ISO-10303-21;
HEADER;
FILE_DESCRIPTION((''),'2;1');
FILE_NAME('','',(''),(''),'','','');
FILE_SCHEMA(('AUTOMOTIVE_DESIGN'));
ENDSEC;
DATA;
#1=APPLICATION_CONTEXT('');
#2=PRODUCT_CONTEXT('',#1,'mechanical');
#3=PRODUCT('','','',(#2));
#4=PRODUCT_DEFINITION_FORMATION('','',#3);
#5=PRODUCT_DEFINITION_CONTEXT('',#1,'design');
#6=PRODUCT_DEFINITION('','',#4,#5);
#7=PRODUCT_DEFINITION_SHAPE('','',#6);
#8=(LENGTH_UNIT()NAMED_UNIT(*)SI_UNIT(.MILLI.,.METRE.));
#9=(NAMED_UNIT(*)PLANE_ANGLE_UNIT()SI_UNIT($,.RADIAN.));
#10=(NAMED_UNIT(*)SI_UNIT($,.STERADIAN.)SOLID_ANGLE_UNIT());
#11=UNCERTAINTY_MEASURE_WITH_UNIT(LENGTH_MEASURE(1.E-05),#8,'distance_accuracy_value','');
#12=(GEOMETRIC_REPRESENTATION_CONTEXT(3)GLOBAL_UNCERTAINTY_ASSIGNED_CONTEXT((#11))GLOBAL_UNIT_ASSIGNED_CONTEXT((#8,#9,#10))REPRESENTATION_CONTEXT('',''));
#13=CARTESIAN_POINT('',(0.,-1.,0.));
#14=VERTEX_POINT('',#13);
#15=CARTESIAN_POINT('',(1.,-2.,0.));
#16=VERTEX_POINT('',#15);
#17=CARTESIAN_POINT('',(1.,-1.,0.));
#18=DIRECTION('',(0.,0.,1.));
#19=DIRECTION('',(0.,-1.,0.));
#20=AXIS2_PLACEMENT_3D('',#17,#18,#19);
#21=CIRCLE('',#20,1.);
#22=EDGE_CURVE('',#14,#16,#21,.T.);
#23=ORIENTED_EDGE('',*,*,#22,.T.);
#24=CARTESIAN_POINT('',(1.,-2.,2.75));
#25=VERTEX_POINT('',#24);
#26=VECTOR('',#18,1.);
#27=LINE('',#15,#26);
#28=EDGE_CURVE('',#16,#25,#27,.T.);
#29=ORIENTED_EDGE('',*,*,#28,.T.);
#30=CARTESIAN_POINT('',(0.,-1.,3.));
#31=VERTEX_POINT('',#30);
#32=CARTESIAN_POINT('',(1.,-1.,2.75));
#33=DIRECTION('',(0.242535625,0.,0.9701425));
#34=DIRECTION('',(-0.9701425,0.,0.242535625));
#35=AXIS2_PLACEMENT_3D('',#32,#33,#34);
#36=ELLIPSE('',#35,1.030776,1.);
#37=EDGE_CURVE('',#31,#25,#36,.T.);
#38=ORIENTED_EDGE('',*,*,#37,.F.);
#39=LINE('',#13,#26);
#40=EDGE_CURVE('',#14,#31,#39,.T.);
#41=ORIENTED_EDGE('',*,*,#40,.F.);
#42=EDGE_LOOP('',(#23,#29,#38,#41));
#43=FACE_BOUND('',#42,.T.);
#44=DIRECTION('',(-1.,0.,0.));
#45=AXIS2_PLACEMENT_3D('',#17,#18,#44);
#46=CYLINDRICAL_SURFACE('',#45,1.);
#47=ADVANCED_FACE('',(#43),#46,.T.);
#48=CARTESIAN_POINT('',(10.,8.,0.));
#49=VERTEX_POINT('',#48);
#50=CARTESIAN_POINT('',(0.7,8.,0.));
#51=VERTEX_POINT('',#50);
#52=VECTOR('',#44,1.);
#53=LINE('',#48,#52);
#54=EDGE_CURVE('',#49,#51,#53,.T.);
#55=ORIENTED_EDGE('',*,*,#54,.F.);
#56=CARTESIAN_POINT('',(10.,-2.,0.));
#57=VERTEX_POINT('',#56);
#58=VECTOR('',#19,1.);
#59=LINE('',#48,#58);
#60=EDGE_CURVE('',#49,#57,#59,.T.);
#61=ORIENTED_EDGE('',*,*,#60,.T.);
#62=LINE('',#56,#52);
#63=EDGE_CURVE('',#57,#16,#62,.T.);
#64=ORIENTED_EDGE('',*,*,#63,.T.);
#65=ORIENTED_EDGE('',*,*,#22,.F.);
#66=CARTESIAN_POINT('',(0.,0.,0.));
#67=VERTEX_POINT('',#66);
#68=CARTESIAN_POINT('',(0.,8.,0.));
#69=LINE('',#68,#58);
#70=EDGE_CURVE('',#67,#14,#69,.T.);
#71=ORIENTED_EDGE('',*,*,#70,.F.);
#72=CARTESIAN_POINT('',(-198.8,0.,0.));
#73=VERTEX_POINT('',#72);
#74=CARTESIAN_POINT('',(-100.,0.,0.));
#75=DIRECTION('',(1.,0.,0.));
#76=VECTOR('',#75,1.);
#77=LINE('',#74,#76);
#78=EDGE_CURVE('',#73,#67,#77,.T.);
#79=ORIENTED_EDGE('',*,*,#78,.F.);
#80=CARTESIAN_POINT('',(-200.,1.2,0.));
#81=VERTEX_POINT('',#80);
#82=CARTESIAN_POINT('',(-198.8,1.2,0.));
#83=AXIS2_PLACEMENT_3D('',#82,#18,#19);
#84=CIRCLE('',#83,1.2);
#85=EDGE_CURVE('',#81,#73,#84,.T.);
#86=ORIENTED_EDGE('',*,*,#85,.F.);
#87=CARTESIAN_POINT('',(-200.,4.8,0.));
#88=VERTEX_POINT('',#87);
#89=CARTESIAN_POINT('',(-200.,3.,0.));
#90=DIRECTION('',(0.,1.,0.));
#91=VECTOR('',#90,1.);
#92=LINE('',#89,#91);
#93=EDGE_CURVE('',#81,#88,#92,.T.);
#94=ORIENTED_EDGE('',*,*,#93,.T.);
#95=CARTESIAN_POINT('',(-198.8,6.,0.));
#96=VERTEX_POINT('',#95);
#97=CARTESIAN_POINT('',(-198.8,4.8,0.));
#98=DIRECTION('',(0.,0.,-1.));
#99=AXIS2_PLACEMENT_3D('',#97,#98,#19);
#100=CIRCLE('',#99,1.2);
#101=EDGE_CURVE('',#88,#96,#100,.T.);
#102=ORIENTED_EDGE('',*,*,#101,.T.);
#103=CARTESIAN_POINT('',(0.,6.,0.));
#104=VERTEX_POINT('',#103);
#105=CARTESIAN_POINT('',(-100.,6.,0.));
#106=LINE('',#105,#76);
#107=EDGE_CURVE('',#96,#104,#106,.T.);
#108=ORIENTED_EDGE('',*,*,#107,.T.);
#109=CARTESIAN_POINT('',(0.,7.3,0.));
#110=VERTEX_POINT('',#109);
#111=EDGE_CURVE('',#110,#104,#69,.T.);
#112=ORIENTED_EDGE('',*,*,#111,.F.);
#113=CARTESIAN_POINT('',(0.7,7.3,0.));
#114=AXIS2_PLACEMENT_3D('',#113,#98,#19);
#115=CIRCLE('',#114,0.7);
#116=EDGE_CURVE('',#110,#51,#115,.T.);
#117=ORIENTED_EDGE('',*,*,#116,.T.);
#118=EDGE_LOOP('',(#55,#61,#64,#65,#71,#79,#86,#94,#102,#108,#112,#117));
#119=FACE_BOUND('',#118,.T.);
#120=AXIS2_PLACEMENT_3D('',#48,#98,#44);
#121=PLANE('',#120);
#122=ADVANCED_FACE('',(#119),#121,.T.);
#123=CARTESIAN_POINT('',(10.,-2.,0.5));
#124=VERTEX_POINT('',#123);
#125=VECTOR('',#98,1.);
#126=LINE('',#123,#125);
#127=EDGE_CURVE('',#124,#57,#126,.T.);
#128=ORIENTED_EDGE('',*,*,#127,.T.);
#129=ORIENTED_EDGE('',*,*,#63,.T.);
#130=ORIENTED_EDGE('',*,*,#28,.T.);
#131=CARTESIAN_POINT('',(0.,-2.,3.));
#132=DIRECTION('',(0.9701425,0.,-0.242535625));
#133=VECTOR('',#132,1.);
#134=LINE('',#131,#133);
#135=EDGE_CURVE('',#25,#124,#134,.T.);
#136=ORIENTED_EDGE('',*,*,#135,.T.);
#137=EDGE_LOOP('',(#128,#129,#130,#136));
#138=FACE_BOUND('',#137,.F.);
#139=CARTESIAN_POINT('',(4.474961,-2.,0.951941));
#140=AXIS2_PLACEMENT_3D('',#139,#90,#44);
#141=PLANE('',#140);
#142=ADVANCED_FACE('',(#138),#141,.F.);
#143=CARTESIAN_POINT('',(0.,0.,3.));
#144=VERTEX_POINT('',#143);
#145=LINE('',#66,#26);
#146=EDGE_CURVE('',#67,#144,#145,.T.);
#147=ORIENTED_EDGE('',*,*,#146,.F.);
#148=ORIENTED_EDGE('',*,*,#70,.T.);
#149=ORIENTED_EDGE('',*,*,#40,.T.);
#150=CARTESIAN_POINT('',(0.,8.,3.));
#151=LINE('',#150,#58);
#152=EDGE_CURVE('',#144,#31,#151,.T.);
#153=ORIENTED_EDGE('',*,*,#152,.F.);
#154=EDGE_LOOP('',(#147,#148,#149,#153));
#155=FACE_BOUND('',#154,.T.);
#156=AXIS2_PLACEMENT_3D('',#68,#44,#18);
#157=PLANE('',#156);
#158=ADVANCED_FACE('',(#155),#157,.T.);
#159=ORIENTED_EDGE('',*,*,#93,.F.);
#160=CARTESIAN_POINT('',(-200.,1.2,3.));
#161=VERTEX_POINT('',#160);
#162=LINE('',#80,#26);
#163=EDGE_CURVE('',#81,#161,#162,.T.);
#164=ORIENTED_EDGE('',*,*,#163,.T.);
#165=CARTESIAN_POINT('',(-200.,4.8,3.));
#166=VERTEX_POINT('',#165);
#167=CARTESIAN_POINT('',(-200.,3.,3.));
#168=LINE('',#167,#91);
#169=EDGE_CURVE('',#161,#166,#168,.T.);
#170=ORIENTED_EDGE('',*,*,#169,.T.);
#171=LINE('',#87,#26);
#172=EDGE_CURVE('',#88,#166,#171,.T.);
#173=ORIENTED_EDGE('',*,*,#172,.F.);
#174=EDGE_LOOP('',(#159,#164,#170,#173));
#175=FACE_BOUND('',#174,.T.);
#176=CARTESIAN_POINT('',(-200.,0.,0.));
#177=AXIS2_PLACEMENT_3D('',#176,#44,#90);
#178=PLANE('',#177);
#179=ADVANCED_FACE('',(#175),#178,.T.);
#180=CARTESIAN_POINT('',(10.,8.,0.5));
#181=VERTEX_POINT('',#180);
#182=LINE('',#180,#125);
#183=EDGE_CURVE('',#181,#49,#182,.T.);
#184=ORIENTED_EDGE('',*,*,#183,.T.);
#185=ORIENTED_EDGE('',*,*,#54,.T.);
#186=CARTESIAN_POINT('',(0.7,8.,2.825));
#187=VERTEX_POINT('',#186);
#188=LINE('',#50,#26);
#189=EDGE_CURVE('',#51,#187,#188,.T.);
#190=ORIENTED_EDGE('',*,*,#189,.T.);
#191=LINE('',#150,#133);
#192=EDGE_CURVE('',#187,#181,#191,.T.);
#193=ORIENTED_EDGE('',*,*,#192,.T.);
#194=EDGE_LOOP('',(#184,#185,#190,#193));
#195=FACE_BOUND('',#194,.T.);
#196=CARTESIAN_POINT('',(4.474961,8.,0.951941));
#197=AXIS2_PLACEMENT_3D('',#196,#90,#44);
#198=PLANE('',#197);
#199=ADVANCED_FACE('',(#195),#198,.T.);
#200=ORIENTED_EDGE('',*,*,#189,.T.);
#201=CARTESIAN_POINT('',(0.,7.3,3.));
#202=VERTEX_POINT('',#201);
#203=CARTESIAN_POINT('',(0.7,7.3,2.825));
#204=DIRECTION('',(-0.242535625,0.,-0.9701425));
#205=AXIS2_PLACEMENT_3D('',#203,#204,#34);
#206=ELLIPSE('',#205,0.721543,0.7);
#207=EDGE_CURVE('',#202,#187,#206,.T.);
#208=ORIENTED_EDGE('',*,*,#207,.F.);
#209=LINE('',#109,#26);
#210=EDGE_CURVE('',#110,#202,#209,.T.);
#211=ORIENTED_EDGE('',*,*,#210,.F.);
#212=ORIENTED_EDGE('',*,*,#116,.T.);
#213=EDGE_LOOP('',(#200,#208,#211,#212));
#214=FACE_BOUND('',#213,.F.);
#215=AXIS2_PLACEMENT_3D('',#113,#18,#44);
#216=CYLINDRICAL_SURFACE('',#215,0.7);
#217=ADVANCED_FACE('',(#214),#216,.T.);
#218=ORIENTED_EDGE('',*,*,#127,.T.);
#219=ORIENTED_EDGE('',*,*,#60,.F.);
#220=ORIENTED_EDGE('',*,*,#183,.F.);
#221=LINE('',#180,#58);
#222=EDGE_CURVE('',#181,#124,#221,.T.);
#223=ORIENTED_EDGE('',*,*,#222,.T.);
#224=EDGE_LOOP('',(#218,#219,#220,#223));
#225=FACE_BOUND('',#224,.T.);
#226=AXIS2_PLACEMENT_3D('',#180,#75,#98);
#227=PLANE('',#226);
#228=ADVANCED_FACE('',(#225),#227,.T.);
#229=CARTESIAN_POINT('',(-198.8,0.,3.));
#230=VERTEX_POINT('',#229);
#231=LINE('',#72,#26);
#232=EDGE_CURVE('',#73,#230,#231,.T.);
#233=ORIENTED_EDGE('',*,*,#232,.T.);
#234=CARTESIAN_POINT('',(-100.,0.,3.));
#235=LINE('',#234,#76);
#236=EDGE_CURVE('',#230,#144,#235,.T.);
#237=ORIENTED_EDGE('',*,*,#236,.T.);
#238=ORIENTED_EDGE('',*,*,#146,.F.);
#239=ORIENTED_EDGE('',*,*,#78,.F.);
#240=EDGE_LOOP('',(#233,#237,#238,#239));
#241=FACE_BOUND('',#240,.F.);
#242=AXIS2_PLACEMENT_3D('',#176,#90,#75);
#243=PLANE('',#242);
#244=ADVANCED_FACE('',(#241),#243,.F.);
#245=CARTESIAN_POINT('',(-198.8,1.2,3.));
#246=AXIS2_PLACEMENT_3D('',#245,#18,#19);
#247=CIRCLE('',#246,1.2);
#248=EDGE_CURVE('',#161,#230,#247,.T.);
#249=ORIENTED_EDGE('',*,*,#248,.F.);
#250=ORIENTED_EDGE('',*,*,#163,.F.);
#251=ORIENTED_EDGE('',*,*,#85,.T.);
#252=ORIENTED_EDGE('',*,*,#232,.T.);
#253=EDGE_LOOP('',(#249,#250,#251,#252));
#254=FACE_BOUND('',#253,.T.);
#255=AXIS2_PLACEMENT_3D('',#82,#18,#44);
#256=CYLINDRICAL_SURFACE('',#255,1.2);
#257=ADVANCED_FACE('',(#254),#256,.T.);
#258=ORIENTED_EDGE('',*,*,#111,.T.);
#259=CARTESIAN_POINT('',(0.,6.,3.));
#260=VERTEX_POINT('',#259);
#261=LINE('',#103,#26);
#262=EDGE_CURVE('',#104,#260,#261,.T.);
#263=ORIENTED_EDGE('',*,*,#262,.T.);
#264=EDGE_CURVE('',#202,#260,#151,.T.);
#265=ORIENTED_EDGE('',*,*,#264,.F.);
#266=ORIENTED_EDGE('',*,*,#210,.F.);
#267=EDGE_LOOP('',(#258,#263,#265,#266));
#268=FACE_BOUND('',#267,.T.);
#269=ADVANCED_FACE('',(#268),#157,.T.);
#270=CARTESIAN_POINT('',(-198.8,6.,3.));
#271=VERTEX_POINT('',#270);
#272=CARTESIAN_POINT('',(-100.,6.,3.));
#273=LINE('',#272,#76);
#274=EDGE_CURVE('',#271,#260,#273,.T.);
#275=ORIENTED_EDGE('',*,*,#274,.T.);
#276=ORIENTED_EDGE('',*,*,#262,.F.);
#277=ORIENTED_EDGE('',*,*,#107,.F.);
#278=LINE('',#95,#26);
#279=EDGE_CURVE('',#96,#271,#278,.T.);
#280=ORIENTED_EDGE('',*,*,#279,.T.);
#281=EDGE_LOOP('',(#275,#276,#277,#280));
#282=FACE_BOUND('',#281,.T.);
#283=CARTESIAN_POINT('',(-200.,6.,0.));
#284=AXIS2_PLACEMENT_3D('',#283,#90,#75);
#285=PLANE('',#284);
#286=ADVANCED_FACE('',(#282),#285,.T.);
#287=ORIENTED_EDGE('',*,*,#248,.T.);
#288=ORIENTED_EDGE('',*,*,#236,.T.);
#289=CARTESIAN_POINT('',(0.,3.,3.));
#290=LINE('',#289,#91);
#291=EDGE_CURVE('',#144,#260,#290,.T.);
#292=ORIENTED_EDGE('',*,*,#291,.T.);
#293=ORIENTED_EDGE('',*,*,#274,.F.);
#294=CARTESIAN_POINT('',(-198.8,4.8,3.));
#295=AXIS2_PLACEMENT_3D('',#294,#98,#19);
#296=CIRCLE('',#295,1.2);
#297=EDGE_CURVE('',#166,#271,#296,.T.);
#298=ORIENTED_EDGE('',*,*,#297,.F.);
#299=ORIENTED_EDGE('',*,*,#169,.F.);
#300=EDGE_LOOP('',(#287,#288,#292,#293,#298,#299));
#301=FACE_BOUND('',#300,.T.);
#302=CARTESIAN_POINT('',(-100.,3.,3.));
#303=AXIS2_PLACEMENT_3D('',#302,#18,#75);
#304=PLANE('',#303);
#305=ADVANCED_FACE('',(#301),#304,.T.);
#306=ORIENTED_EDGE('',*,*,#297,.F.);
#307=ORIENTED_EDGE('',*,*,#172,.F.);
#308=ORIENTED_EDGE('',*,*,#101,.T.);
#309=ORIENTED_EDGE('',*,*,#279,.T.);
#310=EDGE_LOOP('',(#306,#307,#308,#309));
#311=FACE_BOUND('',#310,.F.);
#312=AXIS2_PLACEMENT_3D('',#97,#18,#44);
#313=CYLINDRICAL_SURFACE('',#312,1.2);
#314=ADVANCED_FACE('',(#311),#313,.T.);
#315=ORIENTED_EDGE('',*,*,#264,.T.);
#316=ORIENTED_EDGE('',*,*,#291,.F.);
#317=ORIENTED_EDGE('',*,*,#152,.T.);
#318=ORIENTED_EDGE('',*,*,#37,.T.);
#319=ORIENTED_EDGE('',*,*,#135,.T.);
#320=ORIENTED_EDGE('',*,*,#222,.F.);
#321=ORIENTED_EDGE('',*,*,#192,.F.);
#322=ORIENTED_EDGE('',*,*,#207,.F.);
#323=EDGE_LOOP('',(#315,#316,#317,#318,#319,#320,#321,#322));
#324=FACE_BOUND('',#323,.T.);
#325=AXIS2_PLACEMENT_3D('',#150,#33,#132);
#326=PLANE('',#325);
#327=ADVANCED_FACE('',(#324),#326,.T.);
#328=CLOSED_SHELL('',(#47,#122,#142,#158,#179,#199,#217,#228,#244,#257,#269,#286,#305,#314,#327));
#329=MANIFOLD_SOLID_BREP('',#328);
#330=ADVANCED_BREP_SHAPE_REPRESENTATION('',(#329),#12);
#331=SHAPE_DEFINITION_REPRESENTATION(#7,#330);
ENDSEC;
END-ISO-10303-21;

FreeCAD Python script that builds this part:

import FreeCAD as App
import Part
import Sketcher
from FreeCAD import Vector


def edges_at(feature, points):
    """Names of the edges that pass closest to the given points."""
    edges = feature.Shape.Edges
    near = lambda p: min(range(len(edges)), key=lambda i: edges[i].distToShape(Part.Vertex(*p))[0])
    return sorted({f"Edge{near(p) + 1}" for p in points})

doc = App.newDocument("Part")
body = doc.addObject("PartDesign::Body", "Body")

sketch1 = doc.addObject("Sketcher::SketchObject", "Sketch")
body.addObject(sketch1)
sketch1.AttachmentSupport = (doc.XZ_Plane, [""])
sketch1.MapMode = "FlatFace"
sketch1.addGeometry(Part.LineSegment(Vector(0, 3, 0), Vector(0, 0, 0)), False)
sketch1.addGeometry(Part.LineSegment(Vector(0, 0, 0), Vector(10, 0, 0)), False)
sketch1.addGeometry(Part.LineSegment(Vector(10, 0, 0), Vector(10, 0.5, 0)), False)
sketch1.addGeometry(Part.LineSegment(Vector(10, 0.5, 0), Vector(0, 3, 0)), False)
sketch1.addConstraint(Sketcher.Constraint("Coincident", 0, 2, 1, 1))
sketch1.addConstraint(Sketcher.Constraint("Coincident", 1, 2, 2, 1))
sketch1.addConstraint(Sketcher.Constraint("Coincident", 2, 2, 3, 1))
sketch1.addConstraint(Sketcher.Constraint("Coincident", 3, 2, 0, 1))
sketch1.addConstraint(Sketcher.Constraint("Vertical", 0))
sketch1.addConstraint(Sketcher.Constraint("Horizontal", 1))
sketch1.addConstraint(Sketcher.Constraint("Vertical", 2))
sketch1.addConstraint(Sketcher.Constraint("Coincident", 0, 2, -1, 1))
sketch1.addConstraint(Sketcher.Constraint("DistanceX", 1, 1, 1, 2, 10.0))
sketch1.addConstraint(Sketcher.Constraint("DistanceY", 0, 2, 0, 1, 3.0))
sketch1.addConstraint(Sketcher.Constraint("DistanceY", 2, 1, 2, 2, 0.5))
pad1 = doc.addObject("PartDesign::Pad", "Pad")
body.addObject(pad1)
pad1.Profile = sketch1
pad1.Length = 10
body2 = doc.addObject("PartDesign::Body", "Body001")
doc.recompute()

body.Placement = App.Placement(Vector(0, 8, 0), App.Rotation(Vector(0, 0, 1), 0))
boolean = doc.addObject("PartDesign::Boolean", "Boolean")
body2.addObject(boolean)
boolean.Type = "Fuse"
boolean.addObjects([body])
doc.recompute()

fillet = doc.addObject("PartDesign::Fillet", "Fillet")
body2.addObject(fillet)
fillet.Base = (boolean, edges_at(boolean, [(0, -2, 1.5)]))
fillet.Radius = 1
doc.recompute()

fillet2 = doc.addObject("PartDesign::Fillet", "Fillet001")
body2.addObject(fillet2)
fillet2.Base = (fillet, edges_at(fillet, [(0, 8, 1.5)]))
fillet2.Radius = 0.7
body3 = doc.addObject("PartDesign::Body", "Body002")

sketch2 = doc.addObject("Sketcher::SketchObject", "Sketch001")
body3.addObject(sketch2)
sketch2.AttachmentSupport = (doc.getObject("XY_Plane002"), [""])
sketch2.MapMode = "FlatFace"
sketch2.addGeometry(Part.LineSegment(Vector(-200, 6, 0), Vector(-200, 0, 0)), False)
sketch2.addGeometry(Part.LineSegment(Vector(-200, 0, 0), Vector(0, 0, 0)), False)
sketch2.addGeometry(Part.LineSegment(Vector(0, 0, 0), Vector(0, 6, 0)), False)
sketch2.addGeometry(Part.LineSegment(Vector(0, 6, 0), Vector(-200, 6, 0)), False)
sketch2.addConstraint(Sketcher.Constraint("Coincident", 0, 2, 1, 1))
sketch2.addConstraint(Sketcher.Constraint("Coincident", 1, 2, 2, 1))
sketch2.addConstraint(Sketcher.Constraint("Coincident", 2, 2, 3, 1))
sketch2.addConstraint(Sketcher.Constraint("Coincident", 3, 2, 0, 1))
sketch2.addConstraint(Sketcher.Constraint("Vertical", 0))
sketch2.addConstraint(Sketcher.Constraint("Horizontal", 1))
sketch2.addConstraint(Sketcher.Constraint("Vertical", 2))
sketch2.addConstraint(Sketcher.Constraint("Horizontal", 3))
sketch2.addConstraint(Sketcher.Constraint("Coincident", 1, 2, -1, 1))
sketch2.addConstraint(Sketcher.Constraint("DistanceX", 1, 1, 1, 2, 200.0))
sketch2.addConstraint(Sketcher.Constraint("DistanceY", 0, 2, 0, 1, 6.0))
pad2 = doc.addObject("PartDesign::Pad", "Pad001")
body3.addObject(pad2)
pad2.Profile = sketch2
pad2.Length = 3
doc.recompute()

fillet3 = doc.addObject("PartDesign::Fillet", "Fillet002")
body3.addObject(fillet3)
fillet3.Base = (pad2, edges_at(pad2, [(-200, 0, 1.5), (-200, 6, 1.5)]))
fillet3.Radius = 1.2
doc.recompute()

boolean2 = doc.addObject("PartDesign::Boolean", "Boolean001")
body3.addObject(boolean2)
boolean2.Type = "Fuse"
boolean2.addObjects([body2])

doc.recompute()
